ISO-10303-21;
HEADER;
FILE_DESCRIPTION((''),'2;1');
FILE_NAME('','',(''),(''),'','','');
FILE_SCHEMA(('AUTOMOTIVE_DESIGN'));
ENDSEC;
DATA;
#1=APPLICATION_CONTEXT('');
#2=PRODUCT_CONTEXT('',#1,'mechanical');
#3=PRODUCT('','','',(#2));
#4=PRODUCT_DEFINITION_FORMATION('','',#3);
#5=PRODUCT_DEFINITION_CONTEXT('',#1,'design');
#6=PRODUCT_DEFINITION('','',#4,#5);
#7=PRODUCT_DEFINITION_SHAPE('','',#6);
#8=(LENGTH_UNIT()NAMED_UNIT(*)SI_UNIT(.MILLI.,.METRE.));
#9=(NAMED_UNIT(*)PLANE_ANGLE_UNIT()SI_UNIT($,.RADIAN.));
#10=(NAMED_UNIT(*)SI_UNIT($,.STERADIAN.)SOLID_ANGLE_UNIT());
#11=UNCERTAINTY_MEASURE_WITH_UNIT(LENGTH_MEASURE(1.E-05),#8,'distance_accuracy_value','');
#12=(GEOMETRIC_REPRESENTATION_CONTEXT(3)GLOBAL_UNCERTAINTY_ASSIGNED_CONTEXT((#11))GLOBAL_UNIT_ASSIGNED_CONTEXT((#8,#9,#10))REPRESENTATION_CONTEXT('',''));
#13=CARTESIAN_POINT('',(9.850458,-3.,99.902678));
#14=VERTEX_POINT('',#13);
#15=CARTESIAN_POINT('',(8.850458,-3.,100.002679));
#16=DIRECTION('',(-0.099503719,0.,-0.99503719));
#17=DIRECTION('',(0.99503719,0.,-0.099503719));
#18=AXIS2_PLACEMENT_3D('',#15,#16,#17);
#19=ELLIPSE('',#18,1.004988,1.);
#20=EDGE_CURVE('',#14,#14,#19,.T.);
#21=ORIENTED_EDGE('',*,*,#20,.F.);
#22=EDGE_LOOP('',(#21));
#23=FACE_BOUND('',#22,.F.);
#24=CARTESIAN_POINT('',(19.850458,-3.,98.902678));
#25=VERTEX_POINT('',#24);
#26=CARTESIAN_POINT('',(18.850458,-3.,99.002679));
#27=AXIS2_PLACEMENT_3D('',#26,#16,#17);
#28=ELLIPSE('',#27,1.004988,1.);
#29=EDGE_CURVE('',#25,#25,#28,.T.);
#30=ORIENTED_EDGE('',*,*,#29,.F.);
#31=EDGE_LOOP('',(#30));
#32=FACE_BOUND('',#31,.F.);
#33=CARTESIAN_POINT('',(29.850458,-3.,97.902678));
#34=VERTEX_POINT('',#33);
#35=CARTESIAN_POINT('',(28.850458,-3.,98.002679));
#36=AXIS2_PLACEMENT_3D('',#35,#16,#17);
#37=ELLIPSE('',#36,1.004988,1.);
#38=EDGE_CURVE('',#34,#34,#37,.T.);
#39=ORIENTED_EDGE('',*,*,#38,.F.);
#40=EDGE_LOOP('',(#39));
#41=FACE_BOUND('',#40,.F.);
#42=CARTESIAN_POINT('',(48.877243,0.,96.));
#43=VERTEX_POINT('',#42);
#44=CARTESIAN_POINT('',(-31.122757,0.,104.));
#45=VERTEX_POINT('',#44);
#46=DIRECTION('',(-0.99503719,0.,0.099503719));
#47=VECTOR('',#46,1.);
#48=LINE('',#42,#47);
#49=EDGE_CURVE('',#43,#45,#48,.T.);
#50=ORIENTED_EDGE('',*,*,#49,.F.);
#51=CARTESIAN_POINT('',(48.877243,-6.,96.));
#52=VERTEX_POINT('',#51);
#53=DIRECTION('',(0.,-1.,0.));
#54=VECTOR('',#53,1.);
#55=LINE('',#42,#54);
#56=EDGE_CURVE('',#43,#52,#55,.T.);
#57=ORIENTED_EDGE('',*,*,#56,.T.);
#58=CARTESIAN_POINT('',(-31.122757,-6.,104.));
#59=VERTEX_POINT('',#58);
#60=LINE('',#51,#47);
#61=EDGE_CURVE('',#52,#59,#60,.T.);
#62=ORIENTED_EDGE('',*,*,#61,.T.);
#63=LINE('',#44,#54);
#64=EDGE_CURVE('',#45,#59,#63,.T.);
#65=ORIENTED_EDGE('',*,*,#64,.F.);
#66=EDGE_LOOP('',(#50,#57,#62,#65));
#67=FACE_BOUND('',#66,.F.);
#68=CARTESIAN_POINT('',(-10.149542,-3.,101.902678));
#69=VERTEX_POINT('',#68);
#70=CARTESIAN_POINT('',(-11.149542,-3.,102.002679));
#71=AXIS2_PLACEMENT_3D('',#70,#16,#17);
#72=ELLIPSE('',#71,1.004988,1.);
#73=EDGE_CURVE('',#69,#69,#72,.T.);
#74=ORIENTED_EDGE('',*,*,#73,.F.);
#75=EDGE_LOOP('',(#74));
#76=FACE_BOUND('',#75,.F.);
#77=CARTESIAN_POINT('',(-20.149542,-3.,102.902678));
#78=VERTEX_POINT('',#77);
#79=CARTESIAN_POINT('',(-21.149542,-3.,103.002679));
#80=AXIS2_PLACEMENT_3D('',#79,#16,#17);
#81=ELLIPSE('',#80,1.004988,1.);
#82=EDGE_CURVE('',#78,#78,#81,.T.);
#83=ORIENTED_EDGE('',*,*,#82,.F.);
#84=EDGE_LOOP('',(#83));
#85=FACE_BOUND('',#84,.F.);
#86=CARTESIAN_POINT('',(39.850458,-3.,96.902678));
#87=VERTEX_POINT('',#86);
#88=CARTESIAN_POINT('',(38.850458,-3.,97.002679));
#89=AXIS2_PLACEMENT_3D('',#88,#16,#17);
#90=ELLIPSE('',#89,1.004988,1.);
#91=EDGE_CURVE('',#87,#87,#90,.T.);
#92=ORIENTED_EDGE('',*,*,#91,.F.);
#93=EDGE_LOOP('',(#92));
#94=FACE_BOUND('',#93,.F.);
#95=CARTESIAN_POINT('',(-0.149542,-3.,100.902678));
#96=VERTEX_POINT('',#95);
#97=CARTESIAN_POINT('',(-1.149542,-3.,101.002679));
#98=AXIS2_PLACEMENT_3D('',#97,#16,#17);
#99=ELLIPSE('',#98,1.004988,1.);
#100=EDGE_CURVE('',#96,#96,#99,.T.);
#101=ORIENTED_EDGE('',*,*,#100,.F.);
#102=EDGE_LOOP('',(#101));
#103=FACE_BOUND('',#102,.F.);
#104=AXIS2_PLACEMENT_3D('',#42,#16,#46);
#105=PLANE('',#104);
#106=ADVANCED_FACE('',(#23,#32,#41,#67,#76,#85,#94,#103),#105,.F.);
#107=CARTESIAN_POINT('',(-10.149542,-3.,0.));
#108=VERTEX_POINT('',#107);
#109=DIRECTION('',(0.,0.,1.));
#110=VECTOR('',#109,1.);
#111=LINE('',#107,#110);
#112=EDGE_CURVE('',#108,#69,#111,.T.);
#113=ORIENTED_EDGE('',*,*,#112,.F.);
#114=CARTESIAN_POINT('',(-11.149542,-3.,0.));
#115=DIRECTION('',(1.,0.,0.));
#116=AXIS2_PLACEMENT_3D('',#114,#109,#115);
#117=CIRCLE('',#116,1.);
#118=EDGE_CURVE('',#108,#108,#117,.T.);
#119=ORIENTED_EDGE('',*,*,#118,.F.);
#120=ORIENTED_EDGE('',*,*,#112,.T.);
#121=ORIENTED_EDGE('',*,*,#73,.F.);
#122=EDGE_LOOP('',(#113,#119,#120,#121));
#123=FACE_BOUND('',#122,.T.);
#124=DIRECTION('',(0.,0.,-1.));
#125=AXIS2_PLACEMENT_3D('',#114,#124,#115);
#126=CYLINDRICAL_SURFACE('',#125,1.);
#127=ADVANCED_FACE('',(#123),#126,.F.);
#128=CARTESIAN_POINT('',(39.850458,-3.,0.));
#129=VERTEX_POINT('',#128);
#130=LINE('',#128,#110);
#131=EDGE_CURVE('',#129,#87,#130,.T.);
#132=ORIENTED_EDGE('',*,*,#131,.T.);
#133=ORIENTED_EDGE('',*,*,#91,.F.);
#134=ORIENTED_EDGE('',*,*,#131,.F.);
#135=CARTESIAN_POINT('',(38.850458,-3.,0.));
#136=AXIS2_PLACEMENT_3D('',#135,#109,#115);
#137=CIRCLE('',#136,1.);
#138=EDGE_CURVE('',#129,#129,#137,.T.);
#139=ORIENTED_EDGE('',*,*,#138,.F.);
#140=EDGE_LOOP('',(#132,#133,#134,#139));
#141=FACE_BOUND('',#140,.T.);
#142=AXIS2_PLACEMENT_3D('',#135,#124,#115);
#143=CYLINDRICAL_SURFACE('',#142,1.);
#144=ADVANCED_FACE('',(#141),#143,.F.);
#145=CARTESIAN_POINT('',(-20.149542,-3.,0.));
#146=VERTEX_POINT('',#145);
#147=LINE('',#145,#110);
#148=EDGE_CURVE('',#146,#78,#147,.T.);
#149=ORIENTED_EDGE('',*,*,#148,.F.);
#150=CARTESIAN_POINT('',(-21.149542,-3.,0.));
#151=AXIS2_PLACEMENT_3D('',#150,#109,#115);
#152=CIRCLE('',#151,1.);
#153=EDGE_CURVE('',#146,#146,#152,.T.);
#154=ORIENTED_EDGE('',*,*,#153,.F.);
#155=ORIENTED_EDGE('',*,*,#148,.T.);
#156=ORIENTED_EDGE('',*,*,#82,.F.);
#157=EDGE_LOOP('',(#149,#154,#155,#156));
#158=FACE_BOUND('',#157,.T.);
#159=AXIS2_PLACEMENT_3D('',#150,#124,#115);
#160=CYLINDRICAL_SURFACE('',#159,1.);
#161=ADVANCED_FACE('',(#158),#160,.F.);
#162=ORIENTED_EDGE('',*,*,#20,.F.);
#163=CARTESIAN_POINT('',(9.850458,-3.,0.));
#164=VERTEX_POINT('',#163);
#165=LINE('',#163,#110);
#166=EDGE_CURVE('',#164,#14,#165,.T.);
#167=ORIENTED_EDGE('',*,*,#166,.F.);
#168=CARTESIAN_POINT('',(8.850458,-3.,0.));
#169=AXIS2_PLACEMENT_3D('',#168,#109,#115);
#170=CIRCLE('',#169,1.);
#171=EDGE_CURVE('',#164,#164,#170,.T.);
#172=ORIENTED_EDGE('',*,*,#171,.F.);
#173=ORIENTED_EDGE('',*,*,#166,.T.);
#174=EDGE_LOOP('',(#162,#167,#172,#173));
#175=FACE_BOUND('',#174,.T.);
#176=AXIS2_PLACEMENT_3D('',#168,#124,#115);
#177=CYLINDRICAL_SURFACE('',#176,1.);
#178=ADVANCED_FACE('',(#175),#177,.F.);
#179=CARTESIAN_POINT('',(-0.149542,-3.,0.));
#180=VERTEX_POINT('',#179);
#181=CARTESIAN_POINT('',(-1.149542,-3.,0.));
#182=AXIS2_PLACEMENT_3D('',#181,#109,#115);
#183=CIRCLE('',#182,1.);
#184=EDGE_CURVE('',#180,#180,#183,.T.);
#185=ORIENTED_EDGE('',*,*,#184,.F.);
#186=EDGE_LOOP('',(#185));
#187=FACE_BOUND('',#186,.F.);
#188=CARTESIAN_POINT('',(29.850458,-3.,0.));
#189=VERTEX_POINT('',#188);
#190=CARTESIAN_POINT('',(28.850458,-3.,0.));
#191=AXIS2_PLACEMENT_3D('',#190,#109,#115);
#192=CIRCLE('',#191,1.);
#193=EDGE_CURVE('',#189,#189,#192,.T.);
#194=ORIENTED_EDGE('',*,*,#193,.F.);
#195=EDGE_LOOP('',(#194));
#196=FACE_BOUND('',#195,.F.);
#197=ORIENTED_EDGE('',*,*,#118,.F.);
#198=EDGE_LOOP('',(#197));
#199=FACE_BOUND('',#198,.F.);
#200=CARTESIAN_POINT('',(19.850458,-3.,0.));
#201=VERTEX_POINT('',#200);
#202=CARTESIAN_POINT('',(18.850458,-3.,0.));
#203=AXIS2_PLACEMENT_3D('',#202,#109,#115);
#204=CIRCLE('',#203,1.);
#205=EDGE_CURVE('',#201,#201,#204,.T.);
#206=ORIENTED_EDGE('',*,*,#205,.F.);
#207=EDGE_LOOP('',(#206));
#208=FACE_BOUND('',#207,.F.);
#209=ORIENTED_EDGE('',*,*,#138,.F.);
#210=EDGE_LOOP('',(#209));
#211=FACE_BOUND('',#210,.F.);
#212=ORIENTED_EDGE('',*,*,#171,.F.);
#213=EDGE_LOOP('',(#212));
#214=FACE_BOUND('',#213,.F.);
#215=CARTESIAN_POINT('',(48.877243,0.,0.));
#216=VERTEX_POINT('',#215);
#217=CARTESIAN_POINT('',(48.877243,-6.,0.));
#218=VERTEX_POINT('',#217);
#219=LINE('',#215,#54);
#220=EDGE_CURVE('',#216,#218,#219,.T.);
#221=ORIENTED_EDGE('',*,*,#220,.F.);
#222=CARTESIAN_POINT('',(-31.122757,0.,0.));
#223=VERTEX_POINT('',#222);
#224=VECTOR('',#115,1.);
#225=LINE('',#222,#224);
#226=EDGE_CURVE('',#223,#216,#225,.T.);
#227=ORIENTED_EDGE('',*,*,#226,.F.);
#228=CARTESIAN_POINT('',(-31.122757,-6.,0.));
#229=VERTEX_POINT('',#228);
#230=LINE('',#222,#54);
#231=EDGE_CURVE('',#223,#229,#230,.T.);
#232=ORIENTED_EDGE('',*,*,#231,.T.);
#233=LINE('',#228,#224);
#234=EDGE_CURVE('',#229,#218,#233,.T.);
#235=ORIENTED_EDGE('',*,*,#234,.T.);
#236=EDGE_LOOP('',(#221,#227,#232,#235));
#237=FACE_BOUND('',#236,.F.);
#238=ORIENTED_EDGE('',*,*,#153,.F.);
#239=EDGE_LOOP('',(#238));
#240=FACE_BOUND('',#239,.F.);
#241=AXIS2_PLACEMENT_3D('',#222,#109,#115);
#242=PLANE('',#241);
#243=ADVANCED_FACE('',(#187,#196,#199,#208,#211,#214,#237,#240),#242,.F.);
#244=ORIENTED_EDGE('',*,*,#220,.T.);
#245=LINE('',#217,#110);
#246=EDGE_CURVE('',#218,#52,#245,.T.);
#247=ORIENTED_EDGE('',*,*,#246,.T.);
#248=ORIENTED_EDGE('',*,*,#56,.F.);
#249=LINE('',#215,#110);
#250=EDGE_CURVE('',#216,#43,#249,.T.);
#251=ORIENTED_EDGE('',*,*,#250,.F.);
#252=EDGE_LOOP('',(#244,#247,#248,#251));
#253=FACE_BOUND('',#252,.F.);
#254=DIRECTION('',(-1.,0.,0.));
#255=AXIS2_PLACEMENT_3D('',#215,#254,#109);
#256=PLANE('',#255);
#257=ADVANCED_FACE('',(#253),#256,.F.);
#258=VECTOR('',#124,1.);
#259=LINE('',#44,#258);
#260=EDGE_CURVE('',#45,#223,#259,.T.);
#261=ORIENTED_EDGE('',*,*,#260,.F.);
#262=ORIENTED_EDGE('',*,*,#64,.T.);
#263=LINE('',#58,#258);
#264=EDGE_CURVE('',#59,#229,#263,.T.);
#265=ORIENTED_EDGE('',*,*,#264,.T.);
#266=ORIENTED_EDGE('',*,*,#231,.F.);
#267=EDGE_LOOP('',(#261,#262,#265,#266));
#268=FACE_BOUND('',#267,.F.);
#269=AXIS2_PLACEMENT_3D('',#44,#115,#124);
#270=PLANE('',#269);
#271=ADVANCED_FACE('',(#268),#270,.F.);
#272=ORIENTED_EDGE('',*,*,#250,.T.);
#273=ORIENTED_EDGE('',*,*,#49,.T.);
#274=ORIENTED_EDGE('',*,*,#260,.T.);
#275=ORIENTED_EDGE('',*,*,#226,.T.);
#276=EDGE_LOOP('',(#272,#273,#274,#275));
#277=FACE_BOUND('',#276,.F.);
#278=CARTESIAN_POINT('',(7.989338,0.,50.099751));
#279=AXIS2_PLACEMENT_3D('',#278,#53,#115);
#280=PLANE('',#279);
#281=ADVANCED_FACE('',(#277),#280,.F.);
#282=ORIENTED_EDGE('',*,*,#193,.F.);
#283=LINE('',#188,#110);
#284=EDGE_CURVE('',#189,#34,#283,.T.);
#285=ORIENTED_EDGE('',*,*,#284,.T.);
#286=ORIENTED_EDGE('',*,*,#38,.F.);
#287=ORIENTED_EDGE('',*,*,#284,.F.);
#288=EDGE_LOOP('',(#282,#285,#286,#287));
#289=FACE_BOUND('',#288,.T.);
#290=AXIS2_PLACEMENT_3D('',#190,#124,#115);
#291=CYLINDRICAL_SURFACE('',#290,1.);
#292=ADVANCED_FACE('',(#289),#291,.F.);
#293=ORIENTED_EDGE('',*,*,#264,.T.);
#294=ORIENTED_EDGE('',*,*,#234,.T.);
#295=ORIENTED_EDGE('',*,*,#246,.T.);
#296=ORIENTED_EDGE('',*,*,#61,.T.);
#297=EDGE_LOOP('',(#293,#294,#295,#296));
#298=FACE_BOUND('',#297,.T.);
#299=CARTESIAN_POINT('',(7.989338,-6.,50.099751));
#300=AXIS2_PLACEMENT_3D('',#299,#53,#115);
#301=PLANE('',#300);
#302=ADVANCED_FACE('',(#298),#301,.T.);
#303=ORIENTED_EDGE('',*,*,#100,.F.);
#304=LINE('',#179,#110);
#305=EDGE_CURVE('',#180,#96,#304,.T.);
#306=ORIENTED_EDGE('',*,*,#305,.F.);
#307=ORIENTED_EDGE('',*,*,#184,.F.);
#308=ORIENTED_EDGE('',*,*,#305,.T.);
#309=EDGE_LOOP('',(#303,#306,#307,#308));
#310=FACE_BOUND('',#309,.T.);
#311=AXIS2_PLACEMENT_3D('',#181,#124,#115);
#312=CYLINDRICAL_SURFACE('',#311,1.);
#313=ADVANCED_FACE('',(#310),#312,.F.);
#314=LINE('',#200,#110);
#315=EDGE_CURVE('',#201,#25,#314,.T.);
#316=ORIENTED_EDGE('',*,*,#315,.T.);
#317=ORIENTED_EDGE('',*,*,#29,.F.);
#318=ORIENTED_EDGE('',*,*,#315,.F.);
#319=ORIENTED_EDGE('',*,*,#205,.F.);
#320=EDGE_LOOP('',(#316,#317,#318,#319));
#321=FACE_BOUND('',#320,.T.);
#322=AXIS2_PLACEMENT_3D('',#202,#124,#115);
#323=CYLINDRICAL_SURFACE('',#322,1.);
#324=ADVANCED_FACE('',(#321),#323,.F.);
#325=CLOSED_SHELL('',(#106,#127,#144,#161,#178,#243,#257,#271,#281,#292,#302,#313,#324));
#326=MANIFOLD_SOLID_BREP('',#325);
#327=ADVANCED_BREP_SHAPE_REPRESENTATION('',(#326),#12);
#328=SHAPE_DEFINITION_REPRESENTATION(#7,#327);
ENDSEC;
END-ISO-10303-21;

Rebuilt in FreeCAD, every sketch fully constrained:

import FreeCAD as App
import Part
import Sketcher

V = App.Vector
Q = App.Units.Quantity

doc = App.newDocument("Part")
body = doc.addObject("PartDesign::Body", "Body")

# Sketch on XZ plane
sketch1 = doc.addObject("Sketcher::SketchObject", "Sketch")
body.addObject(sketch1)
sketch1.AttachmentSupport = (doc.XZ_Plane, [""])
sketch1.MapMode = "FlatFace"
sketch1.addGeometry([
    Part.LineSegment(V(-31, 104, 0), V(-31, 0, 0)),
    Part.LineSegment(V(-31, 0, 0), V(49, 0, 0)),
    Part.LineSegment(V(49, 0, 0), V(49, 96, 0)),
    Part.LineSegment(V(49, 96, 0), V(-31, 104, 0)),
], False)
sketch1.addConstraint([
    Sketcher.Constraint("Coincident", 0, 2, 1, 1),
    Sketcher.Constraint("Coincident", 1, 2, 2, 1),
    Sketcher.Constraint("Coincident", 2, 2, 3, 1),
    Sketcher.Constraint("Coincident", 3, 2, 0, 1),
    Sketcher.Constraint("Vertical", 0),
    Sketcher.Constraint("Horizontal", 1),
    Sketcher.Constraint("Vertical", 2),
    Sketcher.Constraint("PointOnObject", 0, 2, -1),
    Sketcher.Constraint("DistanceX", 1, 1, 1, 2, Q("80 mm")),
    Sketcher.Constraint("DistanceY", 0, 2, 0, 1, Q("104 mm")),
    Sketcher.Constraint("DistanceY", 2, 1, 2, 2, Q("96 mm")),
    Sketcher.Constraint("DistanceX", 0, 2, -1, 1, Q("31.122757 mm")),
])
pad1 = doc.addObject("PartDesign::Pad", "Pad")
body.addObject(pad1)
pad1.Profile = sketch1
pad1.Length = 6

# Sketch on XY plane
sketch2 = doc.addObject("Sketcher::SketchObject", "Sketch001")
body.addObject(sketch2)
sketch2.AttachmentSupport = (doc.XY_Plane, [""])
sketch2.MapMode = "FlatFace"
sketch2.addGeometry([
    Part.Circle(V(-21.1, -3, 0), V(0, 0, 1), 1),  # 0
    Part.Circle(V(-11.1, -3, 0), V(0, 0, 1), 1),  # 1
    Part.Circle(V(-1.1, -3, 0), V(0, 0, 1), 1),  # 2
    Part.Circle(V(8.9, -3, 0), V(0, 0, 1), 1),  # 3
    Part.Circle(V(18.9, -3, 0), V(0, 0, 1), 1),  # 4
    Part.Circle(V(28.9, -3, 0), V(0, 0, 1), 1),  # 5
    Part.Circle(V(38.9, -3, 0), V(0, 0, 1), 1),  # 6
], False)
sketch2.addConstraint([
    Sketcher.Constraint("Equal", 0, 1),
    Sketcher.Constraint("Equal", 1, 2),
    Sketcher.Constraint("Equal", 2, 3),
    Sketcher.Constraint("Equal", 3, 4),
    Sketcher.Constraint("Equal", 4, 5),
    Sketcher.Constraint("Equal", 5, 6),
    Sketcher.Constraint("Horizontal", 0, 3, 1, 3),
    Sketcher.Constraint("Horizontal", 1, 3, 2, 3),
    Sketcher.Constraint("Horizontal", 2, 3, 3, 3),
    Sketcher.Constraint("Horizontal", 3, 3, 4, 3),
    Sketcher.Constraint("Horizontal", 4, 3, 5, 3),
    Sketcher.Constraint("Horizontal", 5, 3, 6, 3),
    Sketcher.Constraint("Diameter", 0, Q("2 mm")),
    Sketcher.Constraint("DistanceY", 0, 3, -1, 1, Q("3 mm")),
    Sketcher.Constraint("DistanceX", 0, 3, 1, 3, Q("10 mm")),
    Sketcher.Constraint("DistanceX", 1, 3, 2, 3, Q("10 mm")),
    Sketcher.Constraint("DistanceX", 2, 3, 3, 3, Q("10 mm")),
    Sketcher.Constraint("DistanceX", 3, 3, 4, 3, Q("10 mm")),
    Sketcher.Constraint("DistanceX", 4, 3, 5, 3, Q("10 mm")),
    Sketcher.Constraint("DistanceX", 5, 3, 6, 3, Q("10 mm")),
    Sketcher.Constraint("DistanceX", -1, 1, 6, 3, Q("38.850458 mm")),
])
pocket1 = doc.addObject("PartDesign::Pocket", "Pocket")
body.addObject(pocket1)
pocket1.Profile = sketch2
pocket1.Length = 110
pocket1.Reversed = True

doc.recompute()
